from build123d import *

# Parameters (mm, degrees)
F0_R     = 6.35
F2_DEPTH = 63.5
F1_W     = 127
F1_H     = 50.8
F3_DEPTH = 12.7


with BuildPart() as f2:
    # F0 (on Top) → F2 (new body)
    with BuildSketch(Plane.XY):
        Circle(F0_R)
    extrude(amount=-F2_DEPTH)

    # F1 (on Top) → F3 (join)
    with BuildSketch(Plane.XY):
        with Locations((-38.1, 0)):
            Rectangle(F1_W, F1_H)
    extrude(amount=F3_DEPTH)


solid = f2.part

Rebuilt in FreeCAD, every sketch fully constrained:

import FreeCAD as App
import Part
import Sketcher
Q = App.Units.Quantity


def add_polygon(sketch, points):
    """Adds a closed chain of lines whose ends are joined by coincident constraints."""
    first, n = sketch.GeometryCount, len(points)
    for a, b in zip(points, points[1:] + points[:1]):
        sketch.addGeometry(Part.LineSegment(App.Vector(*a, 0), App.Vector(*b, 0)), False)
    for i in range(n):
        sketch.addConstraint(Sketcher.Constraint("Coincident", first + i, 2, first + (i + 1) % n, 1))

doc = App.newDocument("Part")
body = doc.addObject("PartDesign::Body", "Body")

sketch1 = body.newObject("Sketcher::SketchObject", "Sketch")
sketch1.AttachmentSupport = (doc.getObject("XY_Plane"), [""])
sketch1.MapMode = "FlatFace"
sketch1.addGeometry(Part.Circle(App.Vector(0, 0, 0), App.Vector(0, 0, 1), 6), False)
sketch1.addConstraint([
    Sketcher.Constraint("Coincident", 0, 3, -1, 1),
    Sketcher.Constraint("Diameter", 0, Q("0.5 in")),
])
pad1 = body.newObject("PartDesign::Pad", "Pad")
pad1.Profile = sketch1
pad1.Length = Q("2.5 in")
pad1.Reversed = True

sketch2 = body.newObject("Sketcher::SketchObject", "Sketch001")
sketch2.AttachmentSupport = (doc.getObject("XY_Plane"), [""])
sketch2.MapMode = "FlatFace"
add_polygon(sketch2, [(-102, 25), (-102, -25), (25, -25), (25, 25)])
sketch2.addConstraint([
    Sketcher.Constraint("Vertical", 0),
    Sketcher.Constraint("Horizontal", 1),
    Sketcher.Constraint("Vertical", 2),
    Sketcher.Constraint("Horizontal", 3),
    Sketcher.Constraint("DistanceX", 1, 1, 1, 2, Q("5 in")),
    Sketcher.Constraint("DistanceY", 0, 2, 0, 1, Q("2 in")),
    Sketcher.Constraint("DistanceX", 0, 2, -1, 1, Q("4 in")),
    Sketcher.Constraint("DistanceY", 0, 2, -1, 1, Q("1 in")),
])
pad2 = body.newObject("PartDesign::Pad", "Pad001")
pad2.Profile = sketch2
pad2.Length = Q("0.5 in")

doc.recompute()
